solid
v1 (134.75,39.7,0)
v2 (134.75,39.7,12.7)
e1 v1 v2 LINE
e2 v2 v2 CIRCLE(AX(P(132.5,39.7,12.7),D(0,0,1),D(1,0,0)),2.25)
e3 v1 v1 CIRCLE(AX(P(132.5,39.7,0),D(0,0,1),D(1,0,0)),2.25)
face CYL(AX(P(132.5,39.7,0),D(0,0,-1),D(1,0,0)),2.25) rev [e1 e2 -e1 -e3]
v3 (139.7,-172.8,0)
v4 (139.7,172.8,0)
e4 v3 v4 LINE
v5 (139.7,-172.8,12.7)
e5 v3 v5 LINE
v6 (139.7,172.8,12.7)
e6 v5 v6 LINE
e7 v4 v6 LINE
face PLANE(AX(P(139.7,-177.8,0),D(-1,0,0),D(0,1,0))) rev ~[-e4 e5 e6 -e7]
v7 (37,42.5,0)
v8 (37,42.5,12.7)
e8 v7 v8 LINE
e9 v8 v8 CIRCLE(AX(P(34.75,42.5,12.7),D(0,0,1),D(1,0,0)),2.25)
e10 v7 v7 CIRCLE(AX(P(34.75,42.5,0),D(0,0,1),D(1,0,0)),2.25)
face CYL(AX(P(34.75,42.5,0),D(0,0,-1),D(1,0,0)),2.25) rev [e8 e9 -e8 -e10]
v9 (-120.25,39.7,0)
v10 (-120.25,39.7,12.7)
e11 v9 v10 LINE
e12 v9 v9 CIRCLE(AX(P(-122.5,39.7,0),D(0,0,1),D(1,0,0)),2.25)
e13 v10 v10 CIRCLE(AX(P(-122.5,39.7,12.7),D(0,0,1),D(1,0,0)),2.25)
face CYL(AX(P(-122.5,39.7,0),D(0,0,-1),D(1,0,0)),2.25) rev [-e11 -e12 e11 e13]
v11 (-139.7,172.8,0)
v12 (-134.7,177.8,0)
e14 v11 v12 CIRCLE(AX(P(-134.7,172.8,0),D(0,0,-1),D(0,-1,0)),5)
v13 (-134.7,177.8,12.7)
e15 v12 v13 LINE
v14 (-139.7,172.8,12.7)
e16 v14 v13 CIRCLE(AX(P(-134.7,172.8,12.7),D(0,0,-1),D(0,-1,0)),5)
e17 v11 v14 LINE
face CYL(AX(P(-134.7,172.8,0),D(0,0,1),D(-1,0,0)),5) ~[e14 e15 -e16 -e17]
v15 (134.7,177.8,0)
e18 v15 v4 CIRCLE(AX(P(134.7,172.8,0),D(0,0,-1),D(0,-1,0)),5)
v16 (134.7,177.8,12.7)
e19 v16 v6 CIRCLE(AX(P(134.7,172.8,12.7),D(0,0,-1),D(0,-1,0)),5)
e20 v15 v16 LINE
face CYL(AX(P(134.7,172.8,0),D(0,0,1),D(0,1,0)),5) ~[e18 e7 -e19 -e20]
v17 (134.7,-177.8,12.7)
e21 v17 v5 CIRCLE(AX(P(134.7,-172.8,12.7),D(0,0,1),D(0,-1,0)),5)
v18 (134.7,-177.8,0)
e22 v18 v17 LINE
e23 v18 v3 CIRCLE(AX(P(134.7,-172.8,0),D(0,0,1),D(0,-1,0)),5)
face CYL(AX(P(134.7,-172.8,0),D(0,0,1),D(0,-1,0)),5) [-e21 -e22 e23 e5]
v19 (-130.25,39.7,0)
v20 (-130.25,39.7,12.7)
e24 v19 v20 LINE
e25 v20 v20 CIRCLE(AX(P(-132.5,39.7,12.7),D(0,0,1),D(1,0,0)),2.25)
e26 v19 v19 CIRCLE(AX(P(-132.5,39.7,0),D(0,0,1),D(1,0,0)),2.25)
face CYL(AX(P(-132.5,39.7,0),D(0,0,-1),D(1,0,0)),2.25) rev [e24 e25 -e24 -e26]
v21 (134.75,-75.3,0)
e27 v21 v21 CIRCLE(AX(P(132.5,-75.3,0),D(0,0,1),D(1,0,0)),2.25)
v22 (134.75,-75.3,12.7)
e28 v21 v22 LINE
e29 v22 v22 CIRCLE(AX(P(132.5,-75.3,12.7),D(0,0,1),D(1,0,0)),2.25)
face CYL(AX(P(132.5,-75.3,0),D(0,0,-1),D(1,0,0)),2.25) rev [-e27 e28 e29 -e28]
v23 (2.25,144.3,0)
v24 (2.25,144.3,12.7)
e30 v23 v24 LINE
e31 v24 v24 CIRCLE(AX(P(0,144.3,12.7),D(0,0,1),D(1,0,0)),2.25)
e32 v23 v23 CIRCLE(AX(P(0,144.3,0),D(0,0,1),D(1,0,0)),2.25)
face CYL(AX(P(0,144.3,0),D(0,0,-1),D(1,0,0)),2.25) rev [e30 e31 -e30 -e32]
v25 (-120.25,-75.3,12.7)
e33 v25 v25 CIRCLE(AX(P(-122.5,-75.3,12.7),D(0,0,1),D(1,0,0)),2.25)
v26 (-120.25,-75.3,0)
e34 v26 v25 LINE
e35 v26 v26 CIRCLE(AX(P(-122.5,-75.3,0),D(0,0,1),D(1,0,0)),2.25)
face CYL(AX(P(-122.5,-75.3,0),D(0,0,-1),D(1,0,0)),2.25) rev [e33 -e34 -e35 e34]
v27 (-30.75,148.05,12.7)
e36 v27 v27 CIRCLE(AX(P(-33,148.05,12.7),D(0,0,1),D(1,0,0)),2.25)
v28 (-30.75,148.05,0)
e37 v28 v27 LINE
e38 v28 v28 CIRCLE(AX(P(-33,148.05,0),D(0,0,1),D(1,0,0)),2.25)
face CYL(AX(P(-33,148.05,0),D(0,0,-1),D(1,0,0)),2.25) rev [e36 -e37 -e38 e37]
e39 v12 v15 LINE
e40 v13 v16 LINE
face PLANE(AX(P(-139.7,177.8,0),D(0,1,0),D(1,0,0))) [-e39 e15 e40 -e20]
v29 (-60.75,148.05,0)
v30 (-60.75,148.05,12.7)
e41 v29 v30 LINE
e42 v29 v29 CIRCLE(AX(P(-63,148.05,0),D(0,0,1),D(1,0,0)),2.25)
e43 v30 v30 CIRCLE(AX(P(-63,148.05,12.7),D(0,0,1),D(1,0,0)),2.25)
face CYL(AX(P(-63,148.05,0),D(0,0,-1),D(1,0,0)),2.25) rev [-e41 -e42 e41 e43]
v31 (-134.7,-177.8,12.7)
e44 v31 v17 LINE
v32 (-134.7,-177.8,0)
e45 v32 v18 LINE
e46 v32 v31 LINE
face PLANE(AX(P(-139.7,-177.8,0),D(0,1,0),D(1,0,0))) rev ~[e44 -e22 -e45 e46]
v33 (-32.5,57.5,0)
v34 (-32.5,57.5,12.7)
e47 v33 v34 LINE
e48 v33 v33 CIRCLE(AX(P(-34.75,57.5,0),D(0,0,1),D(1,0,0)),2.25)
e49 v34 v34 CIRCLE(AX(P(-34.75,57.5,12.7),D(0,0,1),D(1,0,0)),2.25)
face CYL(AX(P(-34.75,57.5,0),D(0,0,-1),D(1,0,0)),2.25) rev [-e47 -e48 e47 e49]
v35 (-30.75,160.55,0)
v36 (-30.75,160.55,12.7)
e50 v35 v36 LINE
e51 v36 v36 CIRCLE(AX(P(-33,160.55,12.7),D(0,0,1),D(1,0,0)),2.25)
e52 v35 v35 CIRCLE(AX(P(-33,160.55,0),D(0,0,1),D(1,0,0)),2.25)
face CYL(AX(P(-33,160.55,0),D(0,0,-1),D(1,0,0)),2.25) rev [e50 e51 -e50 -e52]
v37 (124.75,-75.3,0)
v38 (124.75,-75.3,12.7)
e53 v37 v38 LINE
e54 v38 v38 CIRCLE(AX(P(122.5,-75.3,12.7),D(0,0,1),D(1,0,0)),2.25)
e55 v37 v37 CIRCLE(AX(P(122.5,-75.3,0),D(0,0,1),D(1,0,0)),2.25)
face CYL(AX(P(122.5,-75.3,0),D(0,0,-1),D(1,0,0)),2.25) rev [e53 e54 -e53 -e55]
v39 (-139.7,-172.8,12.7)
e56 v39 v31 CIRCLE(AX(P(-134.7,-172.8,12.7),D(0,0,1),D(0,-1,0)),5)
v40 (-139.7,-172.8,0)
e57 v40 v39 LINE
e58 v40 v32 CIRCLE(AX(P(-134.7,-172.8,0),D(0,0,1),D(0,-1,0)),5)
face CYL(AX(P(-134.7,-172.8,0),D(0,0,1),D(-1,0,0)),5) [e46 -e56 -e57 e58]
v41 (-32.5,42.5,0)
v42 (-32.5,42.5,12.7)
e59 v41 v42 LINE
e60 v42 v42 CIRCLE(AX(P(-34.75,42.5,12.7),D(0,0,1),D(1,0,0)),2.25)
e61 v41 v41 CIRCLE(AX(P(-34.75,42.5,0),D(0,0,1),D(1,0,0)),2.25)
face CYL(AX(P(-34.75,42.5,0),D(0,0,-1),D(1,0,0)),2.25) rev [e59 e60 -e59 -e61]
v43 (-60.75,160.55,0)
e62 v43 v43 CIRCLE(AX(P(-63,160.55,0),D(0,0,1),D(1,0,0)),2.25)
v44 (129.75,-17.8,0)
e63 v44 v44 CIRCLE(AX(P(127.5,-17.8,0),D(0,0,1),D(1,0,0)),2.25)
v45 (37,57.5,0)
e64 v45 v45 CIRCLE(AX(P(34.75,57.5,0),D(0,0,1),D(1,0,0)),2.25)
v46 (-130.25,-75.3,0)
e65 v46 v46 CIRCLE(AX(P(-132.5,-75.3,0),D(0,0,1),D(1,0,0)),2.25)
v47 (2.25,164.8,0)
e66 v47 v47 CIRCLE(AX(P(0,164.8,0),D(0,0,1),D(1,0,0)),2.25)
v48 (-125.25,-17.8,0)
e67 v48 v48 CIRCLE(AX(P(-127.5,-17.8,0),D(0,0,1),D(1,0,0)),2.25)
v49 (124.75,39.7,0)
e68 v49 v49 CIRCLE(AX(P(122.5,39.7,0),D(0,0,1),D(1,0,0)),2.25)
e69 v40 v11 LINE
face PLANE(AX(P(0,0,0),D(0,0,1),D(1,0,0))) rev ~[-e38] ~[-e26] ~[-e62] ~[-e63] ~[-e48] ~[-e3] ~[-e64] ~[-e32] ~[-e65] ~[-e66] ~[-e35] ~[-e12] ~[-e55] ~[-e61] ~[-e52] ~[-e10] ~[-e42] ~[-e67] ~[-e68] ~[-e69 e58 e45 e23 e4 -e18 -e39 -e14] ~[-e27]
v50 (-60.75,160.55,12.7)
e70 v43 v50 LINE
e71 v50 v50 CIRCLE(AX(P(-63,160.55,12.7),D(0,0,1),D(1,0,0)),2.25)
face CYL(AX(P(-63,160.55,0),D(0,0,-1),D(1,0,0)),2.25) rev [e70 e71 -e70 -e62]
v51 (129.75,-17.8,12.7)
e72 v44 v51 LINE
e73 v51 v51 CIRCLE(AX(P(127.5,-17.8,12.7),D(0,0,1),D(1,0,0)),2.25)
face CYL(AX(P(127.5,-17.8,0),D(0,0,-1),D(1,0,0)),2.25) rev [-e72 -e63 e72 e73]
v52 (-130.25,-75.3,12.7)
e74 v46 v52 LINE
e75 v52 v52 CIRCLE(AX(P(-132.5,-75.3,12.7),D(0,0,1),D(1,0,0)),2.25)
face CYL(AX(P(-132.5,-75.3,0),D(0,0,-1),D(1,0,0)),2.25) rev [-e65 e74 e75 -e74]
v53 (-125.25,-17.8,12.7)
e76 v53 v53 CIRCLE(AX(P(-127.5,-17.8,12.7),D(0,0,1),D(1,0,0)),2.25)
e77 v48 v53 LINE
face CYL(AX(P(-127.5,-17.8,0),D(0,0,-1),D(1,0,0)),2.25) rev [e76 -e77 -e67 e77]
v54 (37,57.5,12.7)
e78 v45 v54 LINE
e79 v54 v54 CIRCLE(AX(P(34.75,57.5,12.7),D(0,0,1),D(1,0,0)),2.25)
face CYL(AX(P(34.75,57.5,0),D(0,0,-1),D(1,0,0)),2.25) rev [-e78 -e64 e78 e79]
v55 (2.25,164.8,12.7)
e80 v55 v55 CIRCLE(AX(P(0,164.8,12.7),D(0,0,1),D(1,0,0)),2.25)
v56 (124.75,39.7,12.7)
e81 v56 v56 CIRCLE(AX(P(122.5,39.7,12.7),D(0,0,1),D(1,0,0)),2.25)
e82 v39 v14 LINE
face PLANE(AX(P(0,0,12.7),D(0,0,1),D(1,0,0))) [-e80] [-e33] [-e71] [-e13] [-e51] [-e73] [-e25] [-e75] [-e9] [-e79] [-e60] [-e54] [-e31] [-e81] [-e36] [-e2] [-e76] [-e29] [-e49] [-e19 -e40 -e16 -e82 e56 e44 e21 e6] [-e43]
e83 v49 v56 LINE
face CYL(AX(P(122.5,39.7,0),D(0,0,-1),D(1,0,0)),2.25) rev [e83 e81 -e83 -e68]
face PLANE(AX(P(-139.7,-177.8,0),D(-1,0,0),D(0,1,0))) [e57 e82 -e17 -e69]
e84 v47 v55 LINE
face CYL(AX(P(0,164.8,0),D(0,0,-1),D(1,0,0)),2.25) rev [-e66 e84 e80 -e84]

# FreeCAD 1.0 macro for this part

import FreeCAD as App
import Part
import Sketcher

V = App.Vector
Q = App.Units.Quantity


def edges_at(feature, points):
    """Names of the edges that pass closest to the given points."""
    edges = feature.Shape.Edges
    near = lambda p: min(range(len(edges)), key=lambda i: edges[i].distToShape(Part.Vertex(*p))[0])
    return sorted({f"Edge{near(p) + 1}" for p in points})

doc = App.newDocument("Part")
body = doc.addObject("PartDesign::Body", "Body")

# Sketch on XY plane
sketch1 = body.newObject("Sketcher::SketchObject", "Sketch")
sketch1.AttachmentSupport = (doc.getObject("XY_Plane"), [""])
sketch1.MapMode = "FlatFace"
sketch1.addGeometry([
    Part.LineSegment(V(-139.7, 177.8, 0), V(-139.7, -177.8, 0)),  # 0
    Part.LineSegment(V(-139.7, -177.8, 0), V(139.7, -177.8, 0)),  # 1
    Part.LineSegment(V(139.7, -177.8, 0), V(139.7, 177.8, 0)),  # 2
    Part.LineSegment(V(139.7, 177.8, 0), V(-139.7, 177.8, 0)),  # 3
    Part.Circle(V(-132.5, -75.3, 0), V(0, 0, 1), 2.2),  # 4
    Part.Circle(V(-122.5, -75.3, 0), V(0, 0, 1), 2.2),  # 5
    Part.Circle(V(-127.5, -17.8, 0), V(0, 0, 1), 2.2),  # 6
    Part.Circle(V(-132.5, 39.7, 0), V(0, 0, 1), 2.2),  # 7
    Part.Circle(V(-122.5, 39.7, 0), V(0, 0, 1), 2.2),  # 8
    Part.Circle(V(-34.8, 42.5, 0), V(0, 0, 1), 2.2),  # 9
    Part.Circle(V(122.5, -75.3, 0), V(0, 0, 1), 2.2),  # 10
    Part.Circle(V(132.5, -75.3, 0), V(0, 0, 1), 2.2),  # 11
    Part.Circle(V(127.5, -17.8, 0), V(0, 0, 1), 2.2),  # 12
    Part.Circle(V(34.8, 42.5, 0), V(0, 0, 1), 2.2),  # 13
    Part.Circle(V(122.5, 39.7, 0), V(0, 0, 1), 2.2),  # 14
    Part.Circle(V(132.5, 39.7, 0), V(0, 0, 1), 2.2),  # 15
    Part.Circle(V(-34.8, 57.5, 0), V(0, 0, 1), 2.2),  # 16
    Part.Circle(V(-63, 148.1, 0), V(0, 0, 1), 2.2),  # 17
    Part.Circle(V(-63, 160.6, 0), V(0, 0, 1), 2.2),  # 18
    Part.Circle(V(-33, 148.1, 0), V(0, 0, 1), 2.2),  # 19
    Part.Circle(V(-33, 160.6, 0), V(0, 0, 1), 2.2),  # 20
    Part.Circle(V(34.8, 57.5, 0), V(0, 0, 1), 2.2),  # 21
    Part.Circle(V(0, 144.3, 0), V(0, 0, 1), 2.2),  # 22
    Part.Circle(V(0, 164.8, 0), V(0, 0, 1), 2.2),  # 23
], False)
sketch1.addConstraint([
    Sketcher.Constraint("Coincident", 0, 2, 1, 1),
    Sketcher.Constraint("Coincident", 1, 2, 2, 1),
    Sketcher.Constraint("Coincident", 2, 2, 3, 1),
    Sketcher.Constraint("Coincident", 3, 2, 0, 1),
    Sketcher.Constraint("Vertical", 0),
    Sketcher.Constraint("Horizontal", 1),
    Sketcher.Constraint("Vertical", 2),
    Sketcher.Constraint("Horizontal", 3),
    Sketcher.Constraint("Equal", 4, 5),
    Sketcher.Constraint("Equal", 5, 6),
    Sketcher.Constraint("Equal", 6, 7),
    Sketcher.Constraint("Equal", 7, 8),
    Sketcher.Constraint("Equal", 8, 9),
    Sketcher.Constraint("Equal", 9, 10),
    Sketcher.Constraint("Equal", 10, 11),
    Sketcher.Constraint("Equal", 11, 12),
    Sketcher.Constraint("Equal", 12, 13),
    Sketcher.Constraint("Equal", 13, 14),
    Sketcher.Constraint("Equal", 14, 15),
    Sketcher.Constraint("Equal", 15, 16),
    Sketcher.Constraint("Equal", 16, 17),
    Sketcher.Constraint("Equal", 17, 18),
    Sketcher.Constraint("Equal", 18, 19),
    Sketcher.Constraint("Equal", 19, 20),
    Sketcher.Constraint("Equal", 20, 21),
    Sketcher.Constraint("Equal", 21, 22),
    Sketcher.Constraint("Equal", 22, 23),
    Sketcher.Constraint("Symmetric", 0, 2, 2, 2, -1, 1),
    Sketcher.Constraint("Symmetric", 5, 3, 10, 3, -2),
    Sketcher.Constraint("Symmetric", 4, 3, 11, 3, -2),
    Sketcher.Constraint("Symmetric", 6, 3, 12, 3, -2),
    Sketcher.Constraint("Symmetric", 9, 3, 13, 3, -2),
    Sketcher.Constraint("Symmetric", 8, 3, 14, 3, -2),
    Sketcher.Constraint("Symmetric", 7, 3, 15, 3, -2),
    Sketcher.Constraint("Symmetric", 16, 3, 21, 3, -2),
    Sketcher.Constraint("PointOnObject", 22, 3, -2),
    Sketcher.Constraint("PointOnObject", 23, 3, -2),
    Sketcher.Constraint("Horizontal", 4, 3, 5, 3),
    Sketcher.Constraint("Horizontal", 7, 3, 8, 3),
    Sketcher.Constraint("Horizontal", 17, 3, 19, 3),
    Sketcher.Constraint("Horizontal", 18, 3, 20, 3),
    Sketcher.Constraint("Vertical", 4, 3, 7, 3),
    Sketcher.Constraint("Vertical", 5, 3, 8, 3),
    Sketcher.Constraint("Vertical", 9, 3, 16, 3),
    Sketcher.Constraint("Vertical", 17, 3, 18, 3),
    Sketcher.Constraint("Vertical", 19, 3, 20, 3),
    Sketcher.Constraint("DistanceX", 1, 1, 1, 2, Q("11 in")),
    Sketcher.Constraint("DistanceY", 0, 2, 0, 1, Q("14 in")),
    Sketcher.Constraint("Diameter", 4, 4.5),
    Sketcher.Constraint("DistanceX", 4, 3, -1, 1, 132.5),
    Sketcher.Constraint("DistanceY", 4, 3, -1, 1, 75.3),
    Sketcher.Constraint("DistanceX", 5, 3, -1, 1, 122.5),
    Sketcher.Constraint("DistanceX", 6, 3, -1, 1, 127.5),
    Sketcher.Constraint("DistanceY", 6, 3, -1, 1, 17.8),
    Sketcher.Constraint("DistanceY", -1, 1, 7, 3, 39.7),
    Sketcher.Constraint("DistanceX", 9, 3, -1, 1, 34.75),
    Sketcher.Constraint("DistanceY", -1, 1, 9, 3, 42.5),
    Sketcher.Constraint("DistanceY", -1, 1, 16, 3, 57.5),
    Sketcher.Constraint("DistanceX", 17, 3, -1, 1, 63.0),
    Sketcher.Constraint("DistanceY", -1, 1, 17, 3, 148.05),
    Sketcher.Constraint("DistanceY", -1, 1, 18, 3, 160.55),
    Sketcher.Constraint("DistanceX", 19, 3, -1, 1, 33.0),
    Sketcher.Constraint("DistanceY", -1, 1, 22, 3, 144.3),
    Sketcher.Constraint("DistanceY", -1, 1, 23, 3, 164.8),
])
pad1 = body.newObject("PartDesign::Pad", "Pad")
pad1.Profile = sketch1
pad1.Length = Q("0.5 in")
doc.recompute()

fillet = body.newObject("PartDesign::Fillet", "Fillet")
fillet.Base = (pad1, edges_at(pad1, [
    (-139.7, -177.8, 6.35),
    (139.7, -177.8, 6.35),
    (139.7, 177.8, 6.35),
    (-139.7, 177.8, 6.35),
]))
fillet.Radius = 5

doc.recompute()
